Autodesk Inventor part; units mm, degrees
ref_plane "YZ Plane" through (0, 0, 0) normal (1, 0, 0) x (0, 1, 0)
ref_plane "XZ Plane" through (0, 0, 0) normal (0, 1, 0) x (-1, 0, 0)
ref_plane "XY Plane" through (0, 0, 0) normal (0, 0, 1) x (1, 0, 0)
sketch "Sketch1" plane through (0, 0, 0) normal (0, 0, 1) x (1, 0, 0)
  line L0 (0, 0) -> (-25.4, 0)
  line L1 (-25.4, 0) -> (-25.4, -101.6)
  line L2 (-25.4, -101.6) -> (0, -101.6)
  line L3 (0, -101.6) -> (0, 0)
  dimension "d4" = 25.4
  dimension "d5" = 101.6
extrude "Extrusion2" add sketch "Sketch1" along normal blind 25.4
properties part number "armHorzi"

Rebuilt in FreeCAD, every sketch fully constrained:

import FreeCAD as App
import Part
import Sketcher
from FreeCAD import Vector
Q = App.Units.Quantity


def add_polygon(sketch, points):
    """Adds a closed chain of lines whose ends are joined by coincident constraints."""
    first, n = sketch.GeometryCount, len(points)
    for a, b in zip(points, points[1:] + points[:1]):
        sketch.addGeometry(Part.LineSegment(App.Vector(*a, 0), App.Vector(*b, 0)), False)
    for i in range(n):
        sketch.addConstraint(Sketcher.Constraint("Coincident", first + i, 2, first + (i + 1) % n, 1))

doc = App.newDocument("Part")
body = doc.addObject("PartDesign::Body", "Body")

# Sketch on XY plane
sketch1 = body.newObject("Sketcher::SketchObject", "Sketch")
sketch1.AttachmentSupport = (doc.getObject("XY_Plane"), [""])
sketch1.MapMode = "FlatFace"
add_polygon(sketch1, [(0, -102), (0, 0), (-25, 0), (-25, -102)])  # lines 0-3
sketch1.addConstraint([
    Sketcher.Constraint("Vertical", 0),
    Sketcher.Constraint("Horizontal", 1),
    Sketcher.Constraint("Vertical", 2),
    Sketcher.Constraint("Horizontal", 3),
    Sketcher.Constraint("Coincident", 0, 2, -1, 1),
    Sketcher.Constraint("DistanceX", 1, 2, 1, 1, Q("1 in")),
    Sketcher.Constraint("DistanceY", 0, 1, 0, 2, Q("4 in")),
])
pad1 = body.newObject("PartDesign::Pad", "Pad")
pad1.Profile = sketch1
pad1.Length = Q("1 in")

doc.recompute()
